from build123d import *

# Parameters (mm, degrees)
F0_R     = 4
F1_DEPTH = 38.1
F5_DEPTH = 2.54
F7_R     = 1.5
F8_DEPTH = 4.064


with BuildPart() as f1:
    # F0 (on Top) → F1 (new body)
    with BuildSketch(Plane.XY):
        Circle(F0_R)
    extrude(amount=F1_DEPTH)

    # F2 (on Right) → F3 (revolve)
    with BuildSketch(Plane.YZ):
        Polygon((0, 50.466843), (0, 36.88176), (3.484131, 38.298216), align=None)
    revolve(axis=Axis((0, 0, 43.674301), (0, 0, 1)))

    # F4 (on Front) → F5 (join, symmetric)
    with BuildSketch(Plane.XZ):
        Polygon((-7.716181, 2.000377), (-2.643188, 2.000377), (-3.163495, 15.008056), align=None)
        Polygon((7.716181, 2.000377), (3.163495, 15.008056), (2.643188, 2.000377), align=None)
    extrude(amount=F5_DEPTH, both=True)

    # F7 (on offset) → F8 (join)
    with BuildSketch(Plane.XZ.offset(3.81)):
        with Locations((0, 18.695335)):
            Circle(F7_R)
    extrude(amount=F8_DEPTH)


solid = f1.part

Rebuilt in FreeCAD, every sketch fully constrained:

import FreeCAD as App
import Part
import Sketcher
Q = App.Units.Quantity

doc = App.newDocument("Part")
params = doc.addObject("Spreadsheet::Sheet", "Params")
for row, (alias, value) in enumerate([
    ("pad1_length", "1.5 in"),
    ("revolution_angle", "360 deg"),
    ("pad2_length", "0.2 in"),
    ("pad3_length", "0.16 in"),
], start=1):
    params.set(f"A{row}", alias)
    params.set(f"B{row}", "=" + value)
    params.setAlias(f"B{row}", alias)

body = doc.addObject("PartDesign::Body", "Body")

sketch1 = body.newObject("Sketcher::SketchObject", "Sketch")
sketch1.AttachmentSupport = (doc.getObject("XY_Plane"), [""])
sketch1.MapMode = "FlatFace"
sketch1.addGeometry(Part.Circle(App.Vector(0, 0, 0), App.Vector(0, 0, 1), 4), False)
sketch1.addConstraint([
    Sketcher.Constraint("Coincident", 0, 3, -1, 1),
    Sketcher.Constraint("Diameter", 0, Q("8 mm")),
])
pad1 = body.newObject("PartDesign::Pad", "Pad")
pad1.Profile = sketch1
pad1.setExpression("Length", "Params.pad1_length")

sketch2 = body.newObject("Sketcher::SketchObject", "Sketch001")
sketch2.AttachmentSupport = (doc.getObject("YZ_Plane"), [""])
sketch2.MapMode = "FlatFace"
sketch2.addGeometry([
    Part.LineSegment(App.Vector(0, 50.5, 0), App.Vector(0, 36.9, 0)),
    Part.LineSegment(App.Vector(0, 36.9, 0), App.Vector(3.5, 38.3, 0)),
    Part.LineSegment(App.Vector(3.5, 38.3, 0), App.Vector(0, 50.5, 0)),
], False)
sketch2.addConstraint([
    Sketcher.Constraint("Coincident", 0, 2, 1, 1),
    Sketcher.Constraint("Coincident", 1, 2, 2, 1),
    Sketcher.Constraint("Coincident", 2, 2, 0, 1),
    Sketcher.Constraint("Vertical", 0),
    Sketcher.Constraint("PointOnObject", 0, 2, -2),
    Sketcher.Constraint("DistanceY", 0, 2, 0, 1, Q("13.585083 mm")),
    Sketcher.Constraint("DistanceY", -1, 1, 0, 2, Q("36.88176 mm")),
    Sketcher.Constraint("DistanceX", -1, 1, 1, 2, Q("3.484131 mm")),
    Sketcher.Constraint("Distance", 1, Q("3.761053 mm")),
])
revolution = body.newObject("PartDesign::Revolution", "Revolution")
revolution.Profile = sketch2
revolution.ReferenceAxis = (sketch2, ["V_Axis"])
revolution.setExpression("Angle", "Params.revolution_angle")

sketch3 = body.newObject("Sketcher::SketchObject", "Sketch002")
sketch3.AttachmentSupport = (doc.getObject("XZ_Plane"), [""])
sketch3.MapMode = "FlatFace"
sketch3.addGeometry([
    Part.LineSegment(App.Vector(-8, 2, 0), App.Vector(-3, 2, 0)),
    Part.LineSegment(App.Vector(-3, 2, 0), App.Vector(-3, 15, 0)),
    Part.LineSegment(App.Vector(-3, 15, 0), App.Vector(-8, 2, 0)),
    Part.LineSegment(App.Vector(8, 2, 0), App.Vector(3, 15, 0)),
    Part.LineSegment(App.Vector(3, 15, 0), App.Vector(3, 2, 0)),
    Part.LineSegment(App.Vector(3, 2, 0), App.Vector(8, 2, 0)),
], False)
sketch3.addConstraint([
    Sketcher.Constraint("Coincident", 0, 2, 1, 1),
    Sketcher.Constraint("Coincident", 1, 2, 2, 1),
    Sketcher.Constraint("Coincident", 2, 2, 0, 1),
    Sketcher.Constraint("Coincident", 3, 2, 4, 1),
    Sketcher.Constraint("Coincident", 4, 2, 5, 1),
    Sketcher.Constraint("Coincident", 5, 2, 3, 1),
    Sketcher.Constraint("Horizontal", 0),
    Sketcher.Constraint("Horizontal", 5),
    Sketcher.Constraint("Symmetric", 1, 2, 3, 2, -2),
    Sketcher.Constraint("Symmetric", 0, 2, 4, 2, -2),
    Sketcher.Constraint("Equal", 0, 5),
    Sketcher.Constraint("Distance", 1, Q("13.018081 mm")),
    Sketcher.Constraint("Distance", 2, Q("13.781388 mm")),
    Sketcher.Constraint("DistanceX", 0, 1, 0, 2, Q("5.072993 mm")),
    Sketcher.Constraint("DistanceX", 2, 2, -1, 1, Q("7.716181 mm")),
    Sketcher.Constraint("DistanceY", -1, 1, 0, 2, Q("2.000377 mm")),
])
pad2 = body.newObject("PartDesign::Pad", "Pad001")
pad2.Profile = sketch3
pad2.setExpression("Length", "Params.pad2_length")
pad2.Midplane = True

sketch4 = body.newObject("Sketcher::SketchObject", "Sketch003")
sketch4.AttachmentSupport = (doc.getObject("XZ_Plane"), [""])
sketch4.MapMode = "FlatFace"
sketch4.AttachmentOffset = App.Placement(App.Vector(0, 0, 0.15 * 25.4), App.Rotation())
sketch4.addGeometry(Part.Circle(App.Vector(0, 18.7, 0), App.Vector(0, 0, 1), 1.5), False)
sketch4.addConstraint([
    Sketcher.Constraint("PointOnObject", 0, 3, -2),
    Sketcher.Constraint("Diameter", 0, Q("3 mm")),
    Sketcher.Constraint("DistanceY", -1, 1, 0, 3, Q("18.695335 mm")),
])
pad3 = body.newObject("PartDesign::Pad", "Pad002")
pad3.Profile = sketch4
pad3.setExpression("Length", "Params.pad3_length")

doc.recompute()
